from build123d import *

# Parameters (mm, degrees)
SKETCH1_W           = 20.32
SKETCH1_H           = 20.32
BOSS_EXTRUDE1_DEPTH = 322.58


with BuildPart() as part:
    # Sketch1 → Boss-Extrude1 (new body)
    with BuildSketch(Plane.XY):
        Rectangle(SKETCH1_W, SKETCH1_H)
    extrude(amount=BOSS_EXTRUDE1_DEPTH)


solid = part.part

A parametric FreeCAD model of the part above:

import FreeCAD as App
import Part
import Sketcher
from FreeCAD import Vector
Q = App.Units.Quantity


def add_polygon(sketch, points):
    """Adds a closed chain of lines whose ends are joined by coincident constraints."""
    first, n = sketch.GeometryCount, len(points)
    for a, b in zip(points, points[1:] + points[:1]):
        sketch.addGeometry(Part.LineSegment(App.Vector(*a, 0), App.Vector(*b, 0)), False)
    for i in range(n):
        sketch.addConstraint(Sketcher.Constraint("Coincident", first + i, 2, first + (i + 1) % n, 1))

doc = App.newDocument("Part")
body = doc.addObject("PartDesign::Body", "Body")

# Sketch on XY plane
sketch1 = body.newObject("Sketcher::SketchObject", "Sketch")
sketch1.AttachmentSupport = (doc.getObject("XY_Plane"), [""])
sketch1.MapMode = "FlatFace"
add_polygon(sketch1, [(-10, 10), (-10, -10), (10, -10), (10, 10)])  # lines 0-3
sketch1.addConstraint(Sketcher.Constraint("Vertical", 0))
sketch1.addConstraint(Sketcher.Constraint("Horizontal", 1))
sketch1.addConstraint(Sketcher.Constraint("Vertical", 2))
sketch1.addConstraint(Sketcher.Constraint("Horizontal", 3))
sketch1.addConstraint(Sketcher.Constraint("Symmetric", 0, 2, 2, 2, -1, 1))
sketch1.addConstraint(Sketcher.Constraint("Equal", 3, 0))
sketch1.addConstraint(Sketcher.Constraint("DistanceX", 1, 1, 1, 2, Q("0.8 in")))
pad1 = body.newObject("PartDesign::Pad", "Pad")
pad1.Profile = sketch1
pad1.Length = Q("12.7 in")

doc.recompute()
